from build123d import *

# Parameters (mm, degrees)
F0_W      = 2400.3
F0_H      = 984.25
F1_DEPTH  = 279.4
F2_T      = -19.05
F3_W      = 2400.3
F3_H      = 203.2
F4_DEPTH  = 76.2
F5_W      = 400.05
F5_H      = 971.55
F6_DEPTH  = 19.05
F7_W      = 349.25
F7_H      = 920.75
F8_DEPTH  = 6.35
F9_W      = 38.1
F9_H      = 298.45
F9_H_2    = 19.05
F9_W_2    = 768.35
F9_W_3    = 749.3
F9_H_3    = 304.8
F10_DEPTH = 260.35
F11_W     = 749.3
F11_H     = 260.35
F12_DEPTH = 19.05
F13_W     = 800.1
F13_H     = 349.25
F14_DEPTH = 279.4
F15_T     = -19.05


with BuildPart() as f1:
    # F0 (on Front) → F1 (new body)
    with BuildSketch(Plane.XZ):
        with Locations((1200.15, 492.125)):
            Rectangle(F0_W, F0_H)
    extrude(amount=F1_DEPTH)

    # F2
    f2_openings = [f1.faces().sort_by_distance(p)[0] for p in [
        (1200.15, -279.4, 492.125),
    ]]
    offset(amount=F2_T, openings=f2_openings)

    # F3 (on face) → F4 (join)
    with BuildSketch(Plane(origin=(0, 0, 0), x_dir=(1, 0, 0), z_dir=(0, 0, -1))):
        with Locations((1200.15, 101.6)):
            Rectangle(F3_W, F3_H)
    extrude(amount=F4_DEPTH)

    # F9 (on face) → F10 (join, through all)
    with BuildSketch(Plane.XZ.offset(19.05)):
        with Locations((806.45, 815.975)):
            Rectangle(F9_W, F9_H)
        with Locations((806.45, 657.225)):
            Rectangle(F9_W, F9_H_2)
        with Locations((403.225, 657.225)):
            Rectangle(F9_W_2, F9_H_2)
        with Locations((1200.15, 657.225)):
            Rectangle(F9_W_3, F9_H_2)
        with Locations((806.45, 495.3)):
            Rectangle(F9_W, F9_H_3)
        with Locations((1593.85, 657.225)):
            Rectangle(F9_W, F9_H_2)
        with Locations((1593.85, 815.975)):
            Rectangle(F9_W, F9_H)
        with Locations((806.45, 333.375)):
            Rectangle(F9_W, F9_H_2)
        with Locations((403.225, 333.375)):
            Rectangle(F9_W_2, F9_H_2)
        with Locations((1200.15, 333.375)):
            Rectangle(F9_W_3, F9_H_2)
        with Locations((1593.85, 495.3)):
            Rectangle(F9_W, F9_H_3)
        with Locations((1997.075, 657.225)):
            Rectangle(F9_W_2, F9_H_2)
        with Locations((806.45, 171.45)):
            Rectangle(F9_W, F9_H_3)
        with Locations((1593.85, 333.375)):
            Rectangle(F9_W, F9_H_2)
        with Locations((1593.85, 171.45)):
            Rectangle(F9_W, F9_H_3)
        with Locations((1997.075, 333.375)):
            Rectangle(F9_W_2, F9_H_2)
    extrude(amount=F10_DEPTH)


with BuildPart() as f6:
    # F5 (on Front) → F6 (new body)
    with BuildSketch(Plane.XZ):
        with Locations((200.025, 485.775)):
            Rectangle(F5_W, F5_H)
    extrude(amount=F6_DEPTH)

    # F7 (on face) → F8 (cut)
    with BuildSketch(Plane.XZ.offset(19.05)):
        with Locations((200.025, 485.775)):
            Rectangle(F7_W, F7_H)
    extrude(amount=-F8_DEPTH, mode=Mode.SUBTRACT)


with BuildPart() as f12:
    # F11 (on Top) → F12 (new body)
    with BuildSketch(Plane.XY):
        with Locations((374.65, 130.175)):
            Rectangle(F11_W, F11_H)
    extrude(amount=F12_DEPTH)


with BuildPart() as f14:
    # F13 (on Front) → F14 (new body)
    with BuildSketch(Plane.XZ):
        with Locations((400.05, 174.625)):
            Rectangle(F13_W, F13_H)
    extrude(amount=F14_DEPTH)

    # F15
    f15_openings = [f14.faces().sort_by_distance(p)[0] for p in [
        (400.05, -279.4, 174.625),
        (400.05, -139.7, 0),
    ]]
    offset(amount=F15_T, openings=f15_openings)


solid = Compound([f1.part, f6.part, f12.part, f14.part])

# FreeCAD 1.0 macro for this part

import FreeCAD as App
import Part
import Sketcher
from FreeCAD import Vector
Q = App.Units.Quantity


def faces_at(feature, points):
    """Names of the faces that lie closest to the given points."""
    faces = feature.Shape.Faces
    near = lambda p: min(range(len(faces)), key=lambda i: faces[i].distToShape(Part.Vertex(*p))[0])
    return sorted({f"Face{near(p) + 1}" for p in points})

doc = App.newDocument("Part")
body = doc.addObject("PartDesign::Body", "Body")

# Sketch on XZ plane
sketch1 = doc.addObject("Sketcher::SketchObject", "Sketch")
body.addObject(sketch1)
sketch1.AttachmentSupport = (doc.XZ_Plane, [""])
sketch1.MapMode = "FlatFace"
sketch1.addGeometry([
    Part.LineSegment(Vector(0, 984, 0), Vector(0, 0, 0)),
    Part.LineSegment(Vector(0, 0, 0), Vector(2400, 0, 0)),
    Part.LineSegment(Vector(2400, 0, 0), Vector(2400, 984, 0)),
    Part.LineSegment(Vector(2400, 984, 0), Vector(0, 984, 0)),
], False)
sketch1.addConstraint([
    Sketcher.Constraint("Coincident", 0, 2, 1, 1),
    Sketcher.Constraint("Coincident", 1, 2, 2, 1),
    Sketcher.Constraint("Coincident", 2, 2, 3, 1),
    Sketcher.Constraint("Coincident", 3, 2, 0, 1),
    Sketcher.Constraint("Vertical", 0),
    Sketcher.Constraint("Horizontal", 1),
    Sketcher.Constraint("Vertical", 2),
    Sketcher.Constraint("Horizontal", 3),
    Sketcher.Constraint("Coincident", 0, 2, -1, 1),
    Sketcher.Constraint("DistanceX", 1, 1, 1, 2, Q("94.5 in")),
    Sketcher.Constraint("DistanceY", 0, 2, 0, 1, Q("38.75 in")),
])
pad1 = doc.addObject("PartDesign::Pad", "Pad")
body.addObject(pad1)
pad1.Profile = sketch1
pad1.Length = Q("11 in")
doc.recompute()

thickness = doc.addObject("PartDesign::Thickness", "Thickness")
body.addObject(thickness)
thickness.Base = (pad1, faces_at(pad1, [(1200.15, -279.4, 492.125)]))
thickness.Value = Q("0.75 in")
thickness.Reversed = True
thickness.Join = "Arc"

# Sketch on XY plane
sketch2 = doc.addObject("Sketcher::SketchObject", "Sketch001")
body.addObject(sketch2)
sketch2.AttachmentSupport = (doc.XY_Plane, [""])
sketch2.MapMode = "FlatFace"
sketch2.addGeometry([
    Part.LineSegment(Vector(0, -203, 0), Vector(0, 0, 0)),
    Part.LineSegment(Vector(0, 0, 0), Vector(2400, 0, 0)),
    Part.LineSegment(Vector(2400, 0, 0), Vector(2400, -203, 0)),
    Part.LineSegment(Vector(2400, -203, 0), Vector(0, -203, 0)),
], False)
sketch2.addConstraint([
    Sketcher.Constraint("Coincident", 0, 2, 1, 1),
    Sketcher.Constraint("Coincident", 1, 2, 2, 1),
    Sketcher.Constraint("Coincident", 2, 2, 3, 1),
    Sketcher.Constraint("Coincident", 3, 2, 0, 1),
    Sketcher.Constraint("Vertical", 0),
    Sketcher.Constraint("Horizontal", 1),
    Sketcher.Constraint("Vertical", 2),
    Sketcher.Constraint("Horizontal", 3),
    Sketcher.Constraint("Coincident", 0, 2, -1, 1),
    Sketcher.Constraint("DistanceY", 0, 1, 0, 2, Q("8 in")),
    Sketcher.Constraint("DistanceX", 1, 1, 1, 2, Q("94.5 in")),
])
pad2 = doc.addObject("PartDesign::Pad", "Pad001")
body.addObject(pad2)
pad2.Profile = sketch2
pad2.Length = Q("3 in")
pad2.Reversed = True

# Sketch on XZ plane
sketch3 = doc.addObject("Sketcher::SketchObject", "Sketch002")
body.addObject(sketch3)
sketch3.AttachmentSupport = (doc.XZ_Plane, [""])
sketch3.MapMode = "FlatFace"
sketch3.AttachmentOffset = App.Placement(Vector(0, 0, 0.75 * 25.4), App.Rotation())
sketch3.addGeometry([
    Part.LineSegment(Vector(826, 324, 0), Vector(1575, 324, 0)),  # 0
    Part.LineSegment(Vector(1575, 324, 0), Vector(1575, 19, 0)),  # 1
    Part.LineSegment(Vector(1575, 19, 0), Vector(1613, 19, 0)),  # 2
    Part.LineSegment(Vector(1613, 19, 0), Vector(1613, 324, 0)),  # 3
    Part.LineSegment(Vector(1613, 324, 0), Vector(2381, 324, 0)),  # 4
    Part.LineSegment(Vector(2381, 324, 0), Vector(2381, 343, 0)),  # 5
    Part.LineSegment(Vector(2381, 343, 0), Vector(1613, 343, 0)),  # 6
    Part.LineSegment(Vector(1613, 343, 0), Vector(1613, 648, 0)),  # 7
    Part.LineSegment(Vector(1613, 648, 0), Vector(2381, 648, 0)),  # 8
    Part.LineSegment(Vector(2381, 648, 0), Vector(2381, 667, 0)),  # 9
    Part.LineSegment(Vector(2381, 667, 0), Vector(1613, 667, 0)),  # 10
    Part.LineSegment(Vector(1613, 667, 0), Vector(1613, 965, 0)),  # 11
    Part.LineSegment(Vector(1613, 965, 0), Vector(1575, 965, 0)),  # 12
    Part.LineSegment(Vector(1575, 965, 0), Vector(1575, 667, 0)),  # 13
    Part.LineSegment(Vector(1575, 667, 0), Vector(826, 667, 0)),  # 14
    Part.LineSegment(Vector(826, 667, 0), Vector(826, 965, 0)),  # 15
    Part.LineSegment(Vector(826, 965, 0), Vector(787, 965, 0)),  # 16
    Part.LineSegment(Vector(787, 965, 0), Vector(787, 667, 0)),  # 17
    Part.LineSegment(Vector(787, 667, 0), Vector(19, 667, 0)),  # 18
    Part.LineSegment(Vector(19, 667, 0), Vector(19, 648, 0)),  # 19
    Part.LineSegment(Vector(19, 648, 0), Vector(787, 648, 0)),  # 20
    Part.LineSegment(Vector(787, 648, 0), Vector(787, 343, 0)),  # 21
    Part.LineSegment(Vector(787, 343, 0), Vector(19, 343, 0)),  # 22
    Part.LineSegment(Vector(19, 343, 0), Vector(19, 324, 0)),  # 23
    Part.LineSegment(Vector(19, 324, 0), Vector(787, 324, 0)),  # 24
    Part.LineSegment(Vector(787, 324, 0), Vector(787, 19, 0)),  # 25
    Part.LineSegment(Vector(787, 19, 0), Vector(826, 19, 0)),  # 26
    Part.LineSegment(Vector(826, 19, 0), Vector(826, 324, 0)),  # 27
    Part.LineSegment(Vector(1575, 343, 0), Vector(826, 343, 0)),  # 28
    Part.LineSegment(Vector(826, 343, 0), Vector(826, 648, 0)),  # 29
    Part.LineSegment(Vector(826, 648, 0), Vector(1575, 648, 0)),  # 30
    Part.LineSegment(Vector(1575, 648, 0), Vector(1575, 343, 0)),  # 31
], False)
sketch3.addConstraint([
    Sketcher.Constraint("Coincident", 0, 2, 1, 1),
    Sketcher.Constraint("Coincident", 1, 2, 2, 1),
    Sketcher.Constraint("Coincident", 2, 2, 3, 1),
    Sketcher.Constraint("Coincident", 3, 2, 4, 1),
    Sketcher.Constraint("Coincident", 4, 2, 5, 1),
    Sketcher.Constraint("Coincident", 5, 2, 6, 1),
    Sketcher.Constraint("Coincident", 6, 2, 7, 1),
    Sketcher.Constraint("Coincident", 7, 2, 8, 1),
    Sketcher.Constraint("Coincident", 8, 2, 9, 1),
    Sketcher.Constraint("Coincident", 9, 2, 10, 1),
    Sketcher.Constraint("Coincident", 10, 2, 11, 1),
    Sketcher.Constraint("Coincident", 11, 2, 12, 1),
    Sketcher.Constraint("Coincident", 12, 2, 13, 1),
    Sketcher.Constraint("Coincident", 13, 2, 14, 1),
    Sketcher.Constraint("Coincident", 14, 2, 15, 1),
    Sketcher.Constraint("Coincident", 15, 2, 16, 1),
    Sketcher.Constraint("Coincident", 16, 2, 17, 1),
    Sketcher.Constraint("Coincident", 17, 2, 18, 1),
    Sketcher.Constraint("Coincident", 18, 2, 19, 1),
    Sketcher.Constraint("Coincident", 19, 2, 20, 1),
    Sketcher.Constraint("Coincident", 20, 2, 21, 1),
    Sketcher.Constraint("Coincident", 21, 2, 22, 1),
    Sketcher.Constraint("Coincident", 22, 2, 23, 1),
    Sketcher.Constraint("Coincident", 23, 2, 24, 1),
    Sketcher.Constraint("Coincident", 24, 2, 25, 1),
    Sketcher.Constraint("Coincident", 25, 2, 26, 1),
    Sketcher.Constraint("Coincident", 26, 2, 27, 1),
    Sketcher.Constraint("Coincident", 27, 2, 0, 1),
    Sketcher.Constraint("Coincident", 28, 2, 29, 1),
    Sketcher.Constraint("Coincident", 29, 2, 30, 1),
    Sketcher.Constraint("Coincident", 30, 2, 31, 1),
    Sketcher.Constraint("Coincident", 31, 2, 28, 1),
    Sketcher.Constraint("Horizontal", 0),
    Sketcher.Constraint("Vertical", 1),
    Sketcher.Constraint("Horizontal", 2),
    Sketcher.Constraint("Vertical", 3),
    Sketcher.Constraint("Horizontal", 4),
    Sketcher.Constraint("Vertical", 5),
    Sketcher.Constraint("Horizontal", 6),
    Sketcher.Constraint("Vertical", 7),
    Sketcher.Constraint("Horizontal", 8),
    Sketcher.Constraint("Vertical", 9),
    Sketcher.Constraint("Horizontal", 10),
    Sketcher.Constraint("Vertical", 11),
    Sketcher.Constraint("Horizontal", 12),
    Sketcher.Constraint("Vertical", 13),
    Sketcher.Constraint("Horizontal", 14),
    Sketcher.Constraint("Vertical", 15),
    Sketcher.Constraint("Horizontal", 16),
    Sketcher.Constraint("Vertical", 17),
    Sketcher.Constraint("Horizontal", 18),
    Sketcher.Constraint("Vertical", 19),
    Sketcher.Constraint("Horizontal", 20),
    Sketcher.Constraint("Vertical", 21),
    Sketcher.Constraint("Horizontal", 22),
    Sketcher.Constraint("Vertical", 23),
    Sketcher.Constraint("Horizontal", 24),
    Sketcher.Constraint("Vertical", 25),
    Sketcher.Constraint("Horizontal", 26),
    Sketcher.Constraint("Vertical", 27),
    Sketcher.Constraint("Horizontal", 28),
    Sketcher.Constraint("Vertical", 29),
    Sketcher.Constraint("Horizontal", 30),
    Sketcher.Constraint("Vertical", 31),
    Sketcher.Constraint("Horizontal", 0, 2, 3, 2),
    Sketcher.Constraint("Horizontal", 10, 2, 13, 2),
    Sketcher.Constraint("Horizontal", 12, 2, 15, 2),
    Sketcher.Constraint("Horizontal", 14, 2, 17, 2),
    Sketcher.Constraint("Horizontal", 8, 2, 19, 2),
    Sketcher.Constraint("Horizontal", 6, 2, 21, 2),
    Sketcher.Constraint("Horizontal", 4, 2, 23, 2),
    Sketcher.Constraint("Horizontal", 2, 2, 25, 2),
    Sketcher.Constraint("Horizontal", 22, 2, 28, 2),
    Sketcher.Constraint("Horizontal", 20, 2, 29, 2),
    Sketcher.Constraint("Vertical", 3, 2, 6, 2),
    Sketcher.Constraint("Vertical", 5, 2, 8, 2),
    Sketcher.Constraint("Vertical", 7, 2, 10, 2),
    Sketcher.Constraint("Vertical", 1, 2, 12, 2),
    Sketcher.Constraint("Vertical", 17, 2, 20, 2),
    Sketcher.Constraint("Vertical", 19, 2, 22, 2),
    Sketcher.Constraint("Vertical", 21, 2, 24, 2),
    Sketcher.Constraint("Vertical", 15, 2, 26, 2),
    Sketcher.Constraint("Vertical", 27, 2, 28, 2),
    Sketcher.Constraint("Vertical", 13, 2, 30, 2),
    Sketcher.Constraint("Equal", 12, 16),
    Sketcher.Constraint("Equal", 10, 18),
    Sketcher.Constraint("Equal", 3, 7),
    Sketcher.Constraint("Equal", 5, 9),
    Sketcher.Constraint("DistanceY", 1, 2, 1, 1, Q("12 in")),
    Sketcher.Constraint("DistanceX", 0, 1, 0, 2, Q("29.5 in")),
    Sketcher.Constraint("DistanceX", 2, 1, 2, 2, Q("1.5 in")),
    Sketcher.Constraint("DistanceX", -1, 1, 0, 2, Q("62 in")),
    Sketcher.Constraint("DistanceY", -1, 1, 11, 2, Q("38 in")),
    Sketcher.Constraint("DistanceX", 4, 1, 4, 2, Q("30.25 in")),
    Sketcher.Constraint("DistanceY", 5, 1, 5, 2, Q("0.75 in")),
    Sketcher.Constraint("DistanceY", 11, 1, 11, 2, Q("11.75 in")),
])
pad3 = doc.addObject("PartDesign::Pad", "Pad002")
body.addObject(pad3)
pad3.Profile = sketch3
pad3.Length = Q("10.25 in")
body2 = doc.addObject("PartDesign::Body", "Body001")

# Sketch on XZ plane
sketch4 = doc.addObject("Sketcher::SketchObject", "Sketch003")
body2.addObject(sketch4)
sketch4.AttachmentSupport = (doc.getObject("XZ_Plane001"), [""])
sketch4.MapMode = "FlatFace"
sketch4.addGeometry([
    Part.LineSegment(Vector(0, 972, 0), Vector(0, 0, 0)),
    Part.LineSegment(Vector(0, 0, 0), Vector(400, 0, 0)),
    Part.LineSegment(Vector(400, 0, 0), Vector(400, 972, 0)),
    Part.LineSegment(Vector(400, 972, 0), Vector(0, 972, 0)),
], False)
sketch4.addConstraint([
    Sketcher.Constraint("Coincident", 0, 2, 1, 1),
    Sketcher.Constraint("Coincident", 1, 2, 2, 1),
    Sketcher.Constraint("Coincident", 2, 2, 3, 1),
    Sketcher.Constraint("Coincident", 3, 2, 0, 1),
    Sketcher.Constraint("Vertical", 0),
    Sketcher.Constraint("Horizontal", 1),
    Sketcher.Constraint("Vertical", 2),
    Sketcher.Constraint("Horizontal", 3),
    Sketcher.Constraint("Coincident", 0, 2, -1, 1),
    Sketcher.Constraint("DistanceX", 1, 1, 1, 2, Q("15.75 in")),
    Sketcher.Constraint("DistanceY", 0, 2, 0, 1, Q("38.25 in")),
])
pad4 = doc.addObject("PartDesign::Pad", "Pad003")
body2.addObject(pad4)
pad4.Profile = sketch4
pad4.Length = Q("0.75 in")

# Sketch on XZ plane
sketch5 = doc.addObject("Sketcher::SketchObject", "Sketch004")
body2.addObject(sketch5)
sketch5.AttachmentSupport = (doc.getObject("XZ_Plane001"), [""])
sketch5.MapMode = "FlatFace"
sketch5.AttachmentOffset = App.Placement(Vector(0, 0, 0.75 * 25.4), App.Rotation())
sketch5.addGeometry([
    Part.LineSegment(Vector(25, 946, 0), Vector(25, 25, 0)),
    Part.LineSegment(Vector(25, 25, 0), Vector(375, 25, 0)),
    Part.LineSegment(Vector(375, 25, 0), Vector(375, 946, 0)),
    Part.LineSegment(Vector(375, 946, 0), Vector(25, 946, 0)),
], False)
sketch5.addConstraint([
    Sketcher.Constraint("Coincident", 0, 2, 1, 1),
    Sketcher.Constraint("Coincident", 1, 2, 2, 1),
    Sketcher.Constraint("Coincident", 2, 2, 3, 1),
    Sketcher.Constraint("Coincident", 3, 2, 0, 1),
    Sketcher.Constraint("Vertical", 0),
    Sketcher.Constraint("Horizontal", 1),
    Sketcher.Constraint("Vertical", 2),
    Sketcher.Constraint("Horizontal", 3),
    Sketcher.Constraint("DistanceX", -1, 1, 0, 2, Q("1 in")),
    Sketcher.Constraint("DistanceY", -1, 1, 0, 2, Q("1 in")),
    Sketcher.Constraint("DistanceX", 1, 1, 1, 2, Q("13.75 in")),
    Sketcher.Constraint("DistanceY", 0, 2, 0, 1, Q("36.25 in")),
])
pocket1 = doc.addObject("PartDesign::Pocket", "Pocket")
body2.addObject(pocket1)
pocket1.Profile = sketch5
pocket1.Length = Q("0.25 in")
body3 = doc.addObject("PartDesign::Body", "Body002")

# Sketch on XY plane
sketch6 = doc.addObject("Sketcher::SketchObject", "Sketch005")
body3.addObject(sketch6)
sketch6.AttachmentSupport = (doc.getObject("XY_Plane002"), [""])
sketch6.MapMode = "FlatFace"
sketch6.addGeometry([
    Part.LineSegment(Vector(0, 260, 0), Vector(0, 0, 0)),
    Part.LineSegment(Vector(0, 0, 0), Vector(749, 0, 0)),
    Part.LineSegment(Vector(749, 0, 0), Vector(749, 260, 0)),
    Part.LineSegment(Vector(749, 260, 0), Vector(0, 260, 0)),
], False)
sketch6.addConstraint([
    Sketcher.Constraint("Coincident", 0, 2, 1, 1),
    Sketcher.Constraint("Coincident", 1, 2, 2, 1),
    Sketcher.Constraint("Coincident", 2, 2, 3, 1),
    Sketcher.Constraint("Coincident", 3, 2, 0, 1),
    Sketcher.Constraint("Vertical", 0),
    Sketcher.Constraint("Horizontal", 1),
    Sketcher.Constraint("Vertical", 2),
    Sketcher.Constraint("Horizontal", 3),
    Sketcher.Constraint("Coincident", 0, 2, -1, 1),
    Sketcher.Constraint("DistanceX", 1, 1, 1, 2, Q("29.5 in")),
    Sketcher.Constraint("DistanceY", 0, 2, 0, 1, Q("10.25 in")),
])
pad5 = doc.addObject("PartDesign::Pad", "Pad004")
body3.addObject(pad5)
pad5.Profile = sketch6
pad5.Length = Q("0.75 in")
body4 = doc.addObject("PartDesign::Body", "Body003")

# Sketch on XZ plane
sketch7 = doc.addObject("Sketcher::SketchObject", "Sketch006")
body4.addObject(sketch7)
sketch7.AttachmentSupport = (doc.getObject("XZ_Plane003"), [""])
sketch7.MapMode = "FlatFace"
sketch7.addGeometry([
    Part.LineSegment(Vector(0, 349, 0), Vector(0, 0, 0)),
    Part.LineSegment(Vector(0, 0, 0), Vector(800, 0, 0)),
    Part.LineSegment(Vector(800, 0, 0), Vector(800, 349, 0)),
    Part.LineSegment(Vector(800, 349, 0), Vector(0, 349, 0)),
], False)
sketch7.addConstraint([
    Sketcher.Constraint("Coincident", 0, 2, 1, 1),
    Sketcher.Constraint("Coincident", 1, 2, 2, 1),
    Sketcher.Constraint("Coincident", 2, 2, 3, 1),
    Sketcher.Constraint("Coincident", 3, 2, 0, 1),
    Sketcher.Constraint("Vertical", 0),
    Sketcher.Constraint("Horizontal", 1),
    Sketcher.Constraint("Vertical", 2),
    Sketcher.Constraint("Horizontal", 3),
    Sketcher.Constraint("Coincident", 0, 2, -1, 1),
    Sketcher.Constraint("DistanceX", 1, 1, 1, 2, Q("31.5 in")),
    Sketcher.Constraint("DistanceY", 0, 2, 0, 1, Q("13.75 in")),
])
pad6 = doc.addObject("PartDesign::Pad", "Pad005")
body4.addObject(pad6)
pad6.Profile = sketch7
pad6.Length = Q("11 in")
doc.recompute()

thickness2 = doc.addObject("PartDesign::Thickness", "Thickness001")
body4.addObject(thickness2)
thickness2.Base = (pad6, faces_at(pad6, [(400.05, -279.4, 174.625), (400.05, -139.7, 0)]))
thickness2.Value = Q("0.75 in")
thickness2.Reversed = True
thickness2.Join = "Arc"

doc.recompute()
